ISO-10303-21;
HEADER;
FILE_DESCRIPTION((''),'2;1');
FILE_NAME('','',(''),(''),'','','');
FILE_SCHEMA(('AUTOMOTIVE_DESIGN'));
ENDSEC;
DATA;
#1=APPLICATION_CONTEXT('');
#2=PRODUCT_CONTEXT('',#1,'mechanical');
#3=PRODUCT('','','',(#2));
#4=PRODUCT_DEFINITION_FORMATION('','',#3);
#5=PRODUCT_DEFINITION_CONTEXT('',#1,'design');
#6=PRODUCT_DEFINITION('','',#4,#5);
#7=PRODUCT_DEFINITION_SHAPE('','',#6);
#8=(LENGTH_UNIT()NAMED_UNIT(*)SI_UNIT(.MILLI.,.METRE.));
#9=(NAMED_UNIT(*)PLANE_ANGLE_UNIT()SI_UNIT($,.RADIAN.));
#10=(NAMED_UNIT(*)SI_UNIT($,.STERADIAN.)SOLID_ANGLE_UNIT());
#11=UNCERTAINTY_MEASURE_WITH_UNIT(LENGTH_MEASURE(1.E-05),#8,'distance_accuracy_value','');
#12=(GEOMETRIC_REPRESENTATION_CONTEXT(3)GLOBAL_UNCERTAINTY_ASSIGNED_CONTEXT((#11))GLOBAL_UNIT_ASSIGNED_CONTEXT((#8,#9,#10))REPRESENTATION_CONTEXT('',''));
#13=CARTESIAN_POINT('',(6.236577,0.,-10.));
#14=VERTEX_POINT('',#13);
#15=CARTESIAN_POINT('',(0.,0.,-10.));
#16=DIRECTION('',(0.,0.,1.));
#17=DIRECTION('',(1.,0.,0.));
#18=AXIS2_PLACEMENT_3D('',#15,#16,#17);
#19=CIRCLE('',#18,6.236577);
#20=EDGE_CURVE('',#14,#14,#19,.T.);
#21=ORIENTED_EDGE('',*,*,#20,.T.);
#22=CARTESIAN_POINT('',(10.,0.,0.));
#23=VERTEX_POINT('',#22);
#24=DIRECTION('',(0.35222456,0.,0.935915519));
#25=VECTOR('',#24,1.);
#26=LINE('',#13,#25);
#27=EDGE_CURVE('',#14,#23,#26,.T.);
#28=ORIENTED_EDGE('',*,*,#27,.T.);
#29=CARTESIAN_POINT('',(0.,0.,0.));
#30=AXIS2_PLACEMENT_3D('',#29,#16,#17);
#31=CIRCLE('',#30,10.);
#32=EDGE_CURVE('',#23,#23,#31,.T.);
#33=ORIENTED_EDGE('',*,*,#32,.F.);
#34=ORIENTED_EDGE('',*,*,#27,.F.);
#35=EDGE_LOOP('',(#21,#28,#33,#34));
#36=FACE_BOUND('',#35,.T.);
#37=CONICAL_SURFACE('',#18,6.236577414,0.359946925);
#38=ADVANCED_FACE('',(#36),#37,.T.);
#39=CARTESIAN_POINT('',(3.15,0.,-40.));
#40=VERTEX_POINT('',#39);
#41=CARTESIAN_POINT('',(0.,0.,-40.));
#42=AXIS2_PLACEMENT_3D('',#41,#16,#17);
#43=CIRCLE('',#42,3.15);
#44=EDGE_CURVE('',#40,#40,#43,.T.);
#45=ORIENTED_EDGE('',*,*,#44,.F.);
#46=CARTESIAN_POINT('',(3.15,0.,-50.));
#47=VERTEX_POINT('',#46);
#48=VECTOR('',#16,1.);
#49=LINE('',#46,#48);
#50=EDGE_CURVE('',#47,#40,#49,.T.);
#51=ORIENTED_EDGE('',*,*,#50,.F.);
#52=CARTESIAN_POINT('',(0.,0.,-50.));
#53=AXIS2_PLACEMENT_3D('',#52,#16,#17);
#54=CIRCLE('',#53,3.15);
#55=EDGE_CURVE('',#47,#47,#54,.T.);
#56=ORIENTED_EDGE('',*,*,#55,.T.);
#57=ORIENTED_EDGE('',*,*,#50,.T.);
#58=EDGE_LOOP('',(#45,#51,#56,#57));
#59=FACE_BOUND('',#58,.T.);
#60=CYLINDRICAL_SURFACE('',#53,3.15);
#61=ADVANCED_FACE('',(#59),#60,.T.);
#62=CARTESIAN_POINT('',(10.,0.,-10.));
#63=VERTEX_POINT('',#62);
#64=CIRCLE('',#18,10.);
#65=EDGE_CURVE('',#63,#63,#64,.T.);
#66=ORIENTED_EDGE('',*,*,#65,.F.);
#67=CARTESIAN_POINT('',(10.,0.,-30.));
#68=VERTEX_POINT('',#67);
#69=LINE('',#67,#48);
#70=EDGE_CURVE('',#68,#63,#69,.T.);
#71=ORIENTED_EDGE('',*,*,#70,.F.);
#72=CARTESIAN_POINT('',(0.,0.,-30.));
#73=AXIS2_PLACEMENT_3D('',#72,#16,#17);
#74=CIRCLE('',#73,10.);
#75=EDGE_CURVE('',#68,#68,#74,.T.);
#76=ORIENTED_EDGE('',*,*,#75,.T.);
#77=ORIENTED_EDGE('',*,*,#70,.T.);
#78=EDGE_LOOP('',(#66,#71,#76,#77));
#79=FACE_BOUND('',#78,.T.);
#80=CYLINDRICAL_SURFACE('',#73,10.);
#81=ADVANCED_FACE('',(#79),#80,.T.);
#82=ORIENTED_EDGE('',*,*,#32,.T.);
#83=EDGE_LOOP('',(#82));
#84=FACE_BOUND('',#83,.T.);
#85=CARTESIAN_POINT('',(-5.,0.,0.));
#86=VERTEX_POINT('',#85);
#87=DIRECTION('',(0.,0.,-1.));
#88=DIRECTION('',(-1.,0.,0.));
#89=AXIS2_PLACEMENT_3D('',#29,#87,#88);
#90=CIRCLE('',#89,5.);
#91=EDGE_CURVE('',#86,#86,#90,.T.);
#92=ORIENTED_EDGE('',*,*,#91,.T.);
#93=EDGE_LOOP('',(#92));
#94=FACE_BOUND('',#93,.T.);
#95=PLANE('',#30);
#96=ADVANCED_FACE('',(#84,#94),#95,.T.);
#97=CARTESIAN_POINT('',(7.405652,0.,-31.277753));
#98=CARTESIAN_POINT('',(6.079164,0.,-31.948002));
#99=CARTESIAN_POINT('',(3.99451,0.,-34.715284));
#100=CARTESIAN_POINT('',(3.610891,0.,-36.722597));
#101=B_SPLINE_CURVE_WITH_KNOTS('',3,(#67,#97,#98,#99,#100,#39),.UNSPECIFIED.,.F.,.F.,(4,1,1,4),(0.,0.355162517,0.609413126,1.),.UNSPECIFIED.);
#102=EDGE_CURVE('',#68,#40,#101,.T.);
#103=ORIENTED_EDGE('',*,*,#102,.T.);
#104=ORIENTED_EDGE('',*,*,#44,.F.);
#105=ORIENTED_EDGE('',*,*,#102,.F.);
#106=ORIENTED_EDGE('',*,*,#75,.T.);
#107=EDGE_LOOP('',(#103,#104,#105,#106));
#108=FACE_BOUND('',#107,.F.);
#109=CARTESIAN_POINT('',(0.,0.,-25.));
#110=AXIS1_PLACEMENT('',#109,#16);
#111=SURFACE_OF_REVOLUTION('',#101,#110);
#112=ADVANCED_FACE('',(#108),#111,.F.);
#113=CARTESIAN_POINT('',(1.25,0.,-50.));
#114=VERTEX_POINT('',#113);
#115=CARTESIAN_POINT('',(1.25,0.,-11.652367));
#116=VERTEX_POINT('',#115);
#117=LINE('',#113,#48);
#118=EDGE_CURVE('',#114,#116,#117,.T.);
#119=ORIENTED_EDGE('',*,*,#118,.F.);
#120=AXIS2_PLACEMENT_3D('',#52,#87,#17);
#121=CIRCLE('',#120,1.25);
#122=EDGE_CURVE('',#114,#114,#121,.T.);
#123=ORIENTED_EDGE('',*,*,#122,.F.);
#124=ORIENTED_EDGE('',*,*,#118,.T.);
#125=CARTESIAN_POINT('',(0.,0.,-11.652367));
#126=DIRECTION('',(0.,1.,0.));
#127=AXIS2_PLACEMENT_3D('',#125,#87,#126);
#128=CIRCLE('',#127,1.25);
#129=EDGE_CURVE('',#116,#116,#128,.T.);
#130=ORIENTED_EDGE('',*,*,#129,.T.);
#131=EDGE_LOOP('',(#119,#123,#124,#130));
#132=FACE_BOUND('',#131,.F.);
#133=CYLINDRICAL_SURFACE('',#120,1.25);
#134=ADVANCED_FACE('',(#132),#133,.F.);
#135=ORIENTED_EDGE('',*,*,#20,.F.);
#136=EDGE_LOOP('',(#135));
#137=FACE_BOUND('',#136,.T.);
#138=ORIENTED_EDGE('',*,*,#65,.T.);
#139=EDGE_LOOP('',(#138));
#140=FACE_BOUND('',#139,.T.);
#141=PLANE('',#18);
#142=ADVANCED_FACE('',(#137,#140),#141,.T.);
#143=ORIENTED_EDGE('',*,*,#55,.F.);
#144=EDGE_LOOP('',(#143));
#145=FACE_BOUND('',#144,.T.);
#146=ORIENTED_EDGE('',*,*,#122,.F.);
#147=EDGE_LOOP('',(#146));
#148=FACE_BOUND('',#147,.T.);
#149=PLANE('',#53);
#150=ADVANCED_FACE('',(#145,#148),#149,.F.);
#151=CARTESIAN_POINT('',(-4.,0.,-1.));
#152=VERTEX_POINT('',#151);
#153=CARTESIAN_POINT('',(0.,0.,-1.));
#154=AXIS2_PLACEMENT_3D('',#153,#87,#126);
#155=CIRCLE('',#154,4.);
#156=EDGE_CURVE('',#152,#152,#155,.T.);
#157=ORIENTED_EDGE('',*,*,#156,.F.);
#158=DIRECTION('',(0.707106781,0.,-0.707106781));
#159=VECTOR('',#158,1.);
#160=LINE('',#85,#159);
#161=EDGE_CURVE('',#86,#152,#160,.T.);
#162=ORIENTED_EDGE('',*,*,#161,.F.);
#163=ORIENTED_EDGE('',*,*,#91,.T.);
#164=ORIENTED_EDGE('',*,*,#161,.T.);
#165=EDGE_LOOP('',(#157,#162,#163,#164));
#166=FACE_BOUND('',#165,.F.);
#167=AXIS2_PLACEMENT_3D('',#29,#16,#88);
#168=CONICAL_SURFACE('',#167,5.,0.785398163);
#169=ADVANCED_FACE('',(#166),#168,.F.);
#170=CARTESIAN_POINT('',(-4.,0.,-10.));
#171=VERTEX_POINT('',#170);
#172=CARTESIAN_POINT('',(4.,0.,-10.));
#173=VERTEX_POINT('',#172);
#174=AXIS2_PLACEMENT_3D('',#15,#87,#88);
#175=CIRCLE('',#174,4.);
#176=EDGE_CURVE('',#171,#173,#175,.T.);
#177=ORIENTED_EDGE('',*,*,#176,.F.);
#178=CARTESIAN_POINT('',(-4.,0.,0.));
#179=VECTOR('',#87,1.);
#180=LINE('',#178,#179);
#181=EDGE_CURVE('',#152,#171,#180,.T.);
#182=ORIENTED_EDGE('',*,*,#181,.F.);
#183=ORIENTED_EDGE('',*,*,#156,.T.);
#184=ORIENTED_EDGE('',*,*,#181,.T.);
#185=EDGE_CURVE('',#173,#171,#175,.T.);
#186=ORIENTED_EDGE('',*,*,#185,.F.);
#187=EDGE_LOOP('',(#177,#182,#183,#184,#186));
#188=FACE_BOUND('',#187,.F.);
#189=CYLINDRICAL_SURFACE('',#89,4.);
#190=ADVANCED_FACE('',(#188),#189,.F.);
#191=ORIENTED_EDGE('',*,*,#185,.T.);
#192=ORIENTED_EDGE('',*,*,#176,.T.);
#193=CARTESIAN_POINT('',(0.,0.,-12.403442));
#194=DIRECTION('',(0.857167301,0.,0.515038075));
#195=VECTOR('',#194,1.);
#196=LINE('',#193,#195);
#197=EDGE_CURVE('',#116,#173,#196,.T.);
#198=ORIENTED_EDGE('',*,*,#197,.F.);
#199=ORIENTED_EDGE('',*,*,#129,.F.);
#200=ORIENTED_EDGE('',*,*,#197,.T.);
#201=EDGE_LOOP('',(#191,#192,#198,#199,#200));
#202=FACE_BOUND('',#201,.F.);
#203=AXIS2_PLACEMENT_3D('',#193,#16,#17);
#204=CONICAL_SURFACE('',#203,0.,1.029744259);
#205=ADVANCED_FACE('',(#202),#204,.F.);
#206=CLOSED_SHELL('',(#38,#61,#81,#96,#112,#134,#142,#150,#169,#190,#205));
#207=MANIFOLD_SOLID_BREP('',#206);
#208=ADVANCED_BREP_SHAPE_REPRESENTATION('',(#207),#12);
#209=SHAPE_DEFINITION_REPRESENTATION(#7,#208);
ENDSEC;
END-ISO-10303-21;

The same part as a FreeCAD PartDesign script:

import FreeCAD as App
import Part
import Sketcher
from FreeCAD import Vector
Q = App.Units.Quantity

doc = App.newDocument("Part")
params = doc.addObject("Spreadsheet::Sheet", "Params")
for row, (alias, value) in enumerate([
    ("sketch1_width", "10 mm"),
    ("sketch1_height", "50 mm"),
    ("sketch1_height2", "20 mm"),
    ("revolution_angle", "360 deg"),
    ("sketch2_diameter", "2.5 mm"),
    ("sketch3_diameter", "4 mm"),
    ("pocket2_length", "35 mm"),
    ("sketch4_diameter", "8 mm"),
    ("hole_diameter", "8 mm"),
    ("hole_depth", "10 mm"),
    ("hole_csink_diameter", "10 mm"),
], start=1):
    params.set(f"A{row}", alias)
    params.set(f"B{row}", "=" + value)
    params.setAlias(f"B{row}", alias)

body = doc.addObject("PartDesign::Body", "Body")

sketch1 = body.newObject("Sketcher::SketchObject", "Sketch")
sketch1.AttachmentSupport = (doc.getObject("XZ_Plane"), [""])
sketch1.MapMode = "FlatFace"
sketch1.addGeometry(Part.LineSegment(Vector(6.236577, -10, 0), Vector(10, 0, 0)), False)
sketch1.addGeometry(Part.LineSegment(Vector(10, 0, 0), Vector(0, 0, 0)), False)
sketch1.addGeometry(Part.LineSegment(Vector(0, 0, 0), Vector(0, -50, 0)), False)
sketch1.addGeometry(Part.LineSegment(Vector(0, -50, 0), Vector(3.15, -50, 0)), False)
sketch1.addGeometry(Part.LineSegment(Vector(3.15, -50, 0), Vector(3.15, -40, 0)), False)
sketch1.addGeometry(Part.BSplineCurve([Vector(10, -30, 0), Vector(7.405652, -31.277753, 0), Vector(6.079164, -31.948002, 0), Vector(3.99451, -34.715284, 0), Vector(3.610891, -36.722597, 0), Vector(3.15, -40, 0)], [4, 1, 1, 4], [0, 0.355162517, 0.609413126, 1], False, 3, [1, 1, 1, 1, 1, 1], False), False)
sketch1.addGeometry(Part.LineSegment(Vector(10, -30, 0), Vector(10, -10, 0)), False)
sketch1.addGeometry(Part.LineSegment(Vector(10, -10, 0), Vector(6.236577, -10, 0)), False)
sketch1.addConstraint(Sketcher.Constraint("Block", 5))
sketch1.addConstraint(Sketcher.Constraint("Coincident", 0, 2, 1, 1))
sketch1.addConstraint(Sketcher.Constraint("Coincident", 1, 2, 2, 1))
sketch1.addConstraint(Sketcher.Constraint("Coincident", 2, 2, 3, 1))
sketch1.addConstraint(Sketcher.Constraint("Coincident", 3, 2, 4, 1))
sketch1.addConstraint(Sketcher.Constraint("Coincident", 4, 2, 5, 2))
sketch1.addConstraint(Sketcher.Constraint("Coincident", 5, 1, 6, 1))
sketch1.addConstraint(Sketcher.Constraint("Coincident", 6, 2, 7, 1))
sketch1.addConstraint(Sketcher.Constraint("Coincident", 7, 2, 0, 1))
sketch1.addConstraint(Sketcher.Constraint("Horizontal", 1))
sketch1.addConstraint(Sketcher.Constraint("Vertical", 2))
sketch1.addConstraint(Sketcher.Constraint("Horizontal", 3))
sketch1.addConstraint(Sketcher.Constraint("Vertical", 4))
sketch1.addConstraint(Sketcher.Constraint("Vertical", 6))
sketch1.addConstraint(Sketcher.Constraint("Horizontal", 7))
sketch1.addConstraint(Sketcher.Constraint("Coincident", 1, 2, -1, 1))
sketch1.addConstraint(Sketcher.Constraint("DistanceX", 1, 2, 1, 1, Q("10 mm")))
sketch1.addConstraint(Sketcher.Constraint("DistanceY", 2, 2, 2, 1, Q("50 mm")))
sketch1.addConstraint(Sketcher.Constraint("DistanceY", 6, 1, 6, 2, Q("20 mm")))
sketch1.addConstraint(Sketcher.Constraint("DistanceX", 7, 2, 7, 1, Q("3.763423 mm")))
sketch1.setExpression("Constraints[16]", "Params.sketch1_width")
sketch1.setExpression("Constraints[17]", "Params.sketch1_height")
sketch1.setExpression("Constraints[18]", "Params.sketch1_height2")
revolution = body.newObject("PartDesign::Revolution", "Revolution")
revolution.Profile = sketch1
revolution.ReferenceAxis = (sketch1, ["V_Axis"])
revolution.setExpression("Angle", "Params.revolution_angle")

sketch2 = body.newObject("Sketcher::SketchObject", "Sketch001")
sketch2.AttachmentSupport = (doc.getObject("XY_Plane"), [""])
sketch2.MapMode = "FlatFace"
sketch2.AttachmentOffset = App.Placement(Vector(0, 0, -50), App.Rotation())
sketch2.addGeometry(Part.Circle(Vector(0, 0, 0), Vector(0, 0, 1), 1.2), False)
sketch2.addConstraint(Sketcher.Constraint("Coincident", 0, 3, -1, 1))
sketch2.addConstraint(Sketcher.Constraint("Diameter", 0, Q("2.5 mm")))
sketch2.setExpression("Constraints[1]", "Params.sketch2_diameter")
pocket1 = body.newObject("PartDesign::Pocket", "Pocket")
pocket1.Profile = sketch2
pocket1.Type = "ThroughAll"
pocket1.Reversed = True

sketch3 = body.newObject("Sketcher::SketchObject", "Sketch002")
sketch3.AttachmentSupport = (doc.getObject("XY_Plane"), [""])
sketch3.MapMode = "FlatFace"
sketch3.AttachmentOffset = App.Placement(Vector(0, 0, -50), App.Rotation())
sketch3.addGeometry(Part.Circle(Vector(0, 0, 0), Vector(0, 0, 1), 2), False)
sketch3.addConstraint(Sketcher.Constraint("Coincident", 0, 3, -1, 1))
sketch3.addConstraint(Sketcher.Constraint("Diameter", 0, Q("4 mm")))
sketch3.setExpression("Constraints[1]", "Params.sketch3_diameter")
pocket2 = body.newObject("PartDesign::Pocket", "Pocket001")
pocket2.Profile = sketch3
pocket2.setExpression("Length", "Params.pocket2_length")

sketch4 = body.newObject("Sketcher::SketchObject", "Sketch003")
sketch4.AttachmentSupport = (doc.getObject("XY_Plane"), [""])
sketch4.MapMode = "FlatFace"
sketch4.addGeometry(Part.Circle(Vector(0, 0, 0), Vector(0, 0, 1), 4), False)
sketch4.addConstraint(Sketcher.Constraint("Coincident", 0, 3, -1, 1))
sketch4.addConstraint(Sketcher.Constraint("Diameter", 0, Q("8 mm")))
sketch4.setExpression("Constraints[1]", "Params.sketch4_diameter")
doc.recompute()
hole = body.newObject("PartDesign::Hole", "Hole")
hole.Profile = sketch4
hole.ThreadType = "None"
hole.setExpression("Diameter", "Params.hole_diameter")
hole.DepthType = "Dimension"
hole.setExpression("Depth", "Params.hole_depth")
hole.DrillPoint = "Angled"
hole.DrillPointAngle = 118
hole.HoleCutType = "Countersink"
hole.setExpression("HoleCutDiameter", "Params.hole_csink_diameter")
hole.HoleCutCountersinkAngle = 90

doc.recompute()
